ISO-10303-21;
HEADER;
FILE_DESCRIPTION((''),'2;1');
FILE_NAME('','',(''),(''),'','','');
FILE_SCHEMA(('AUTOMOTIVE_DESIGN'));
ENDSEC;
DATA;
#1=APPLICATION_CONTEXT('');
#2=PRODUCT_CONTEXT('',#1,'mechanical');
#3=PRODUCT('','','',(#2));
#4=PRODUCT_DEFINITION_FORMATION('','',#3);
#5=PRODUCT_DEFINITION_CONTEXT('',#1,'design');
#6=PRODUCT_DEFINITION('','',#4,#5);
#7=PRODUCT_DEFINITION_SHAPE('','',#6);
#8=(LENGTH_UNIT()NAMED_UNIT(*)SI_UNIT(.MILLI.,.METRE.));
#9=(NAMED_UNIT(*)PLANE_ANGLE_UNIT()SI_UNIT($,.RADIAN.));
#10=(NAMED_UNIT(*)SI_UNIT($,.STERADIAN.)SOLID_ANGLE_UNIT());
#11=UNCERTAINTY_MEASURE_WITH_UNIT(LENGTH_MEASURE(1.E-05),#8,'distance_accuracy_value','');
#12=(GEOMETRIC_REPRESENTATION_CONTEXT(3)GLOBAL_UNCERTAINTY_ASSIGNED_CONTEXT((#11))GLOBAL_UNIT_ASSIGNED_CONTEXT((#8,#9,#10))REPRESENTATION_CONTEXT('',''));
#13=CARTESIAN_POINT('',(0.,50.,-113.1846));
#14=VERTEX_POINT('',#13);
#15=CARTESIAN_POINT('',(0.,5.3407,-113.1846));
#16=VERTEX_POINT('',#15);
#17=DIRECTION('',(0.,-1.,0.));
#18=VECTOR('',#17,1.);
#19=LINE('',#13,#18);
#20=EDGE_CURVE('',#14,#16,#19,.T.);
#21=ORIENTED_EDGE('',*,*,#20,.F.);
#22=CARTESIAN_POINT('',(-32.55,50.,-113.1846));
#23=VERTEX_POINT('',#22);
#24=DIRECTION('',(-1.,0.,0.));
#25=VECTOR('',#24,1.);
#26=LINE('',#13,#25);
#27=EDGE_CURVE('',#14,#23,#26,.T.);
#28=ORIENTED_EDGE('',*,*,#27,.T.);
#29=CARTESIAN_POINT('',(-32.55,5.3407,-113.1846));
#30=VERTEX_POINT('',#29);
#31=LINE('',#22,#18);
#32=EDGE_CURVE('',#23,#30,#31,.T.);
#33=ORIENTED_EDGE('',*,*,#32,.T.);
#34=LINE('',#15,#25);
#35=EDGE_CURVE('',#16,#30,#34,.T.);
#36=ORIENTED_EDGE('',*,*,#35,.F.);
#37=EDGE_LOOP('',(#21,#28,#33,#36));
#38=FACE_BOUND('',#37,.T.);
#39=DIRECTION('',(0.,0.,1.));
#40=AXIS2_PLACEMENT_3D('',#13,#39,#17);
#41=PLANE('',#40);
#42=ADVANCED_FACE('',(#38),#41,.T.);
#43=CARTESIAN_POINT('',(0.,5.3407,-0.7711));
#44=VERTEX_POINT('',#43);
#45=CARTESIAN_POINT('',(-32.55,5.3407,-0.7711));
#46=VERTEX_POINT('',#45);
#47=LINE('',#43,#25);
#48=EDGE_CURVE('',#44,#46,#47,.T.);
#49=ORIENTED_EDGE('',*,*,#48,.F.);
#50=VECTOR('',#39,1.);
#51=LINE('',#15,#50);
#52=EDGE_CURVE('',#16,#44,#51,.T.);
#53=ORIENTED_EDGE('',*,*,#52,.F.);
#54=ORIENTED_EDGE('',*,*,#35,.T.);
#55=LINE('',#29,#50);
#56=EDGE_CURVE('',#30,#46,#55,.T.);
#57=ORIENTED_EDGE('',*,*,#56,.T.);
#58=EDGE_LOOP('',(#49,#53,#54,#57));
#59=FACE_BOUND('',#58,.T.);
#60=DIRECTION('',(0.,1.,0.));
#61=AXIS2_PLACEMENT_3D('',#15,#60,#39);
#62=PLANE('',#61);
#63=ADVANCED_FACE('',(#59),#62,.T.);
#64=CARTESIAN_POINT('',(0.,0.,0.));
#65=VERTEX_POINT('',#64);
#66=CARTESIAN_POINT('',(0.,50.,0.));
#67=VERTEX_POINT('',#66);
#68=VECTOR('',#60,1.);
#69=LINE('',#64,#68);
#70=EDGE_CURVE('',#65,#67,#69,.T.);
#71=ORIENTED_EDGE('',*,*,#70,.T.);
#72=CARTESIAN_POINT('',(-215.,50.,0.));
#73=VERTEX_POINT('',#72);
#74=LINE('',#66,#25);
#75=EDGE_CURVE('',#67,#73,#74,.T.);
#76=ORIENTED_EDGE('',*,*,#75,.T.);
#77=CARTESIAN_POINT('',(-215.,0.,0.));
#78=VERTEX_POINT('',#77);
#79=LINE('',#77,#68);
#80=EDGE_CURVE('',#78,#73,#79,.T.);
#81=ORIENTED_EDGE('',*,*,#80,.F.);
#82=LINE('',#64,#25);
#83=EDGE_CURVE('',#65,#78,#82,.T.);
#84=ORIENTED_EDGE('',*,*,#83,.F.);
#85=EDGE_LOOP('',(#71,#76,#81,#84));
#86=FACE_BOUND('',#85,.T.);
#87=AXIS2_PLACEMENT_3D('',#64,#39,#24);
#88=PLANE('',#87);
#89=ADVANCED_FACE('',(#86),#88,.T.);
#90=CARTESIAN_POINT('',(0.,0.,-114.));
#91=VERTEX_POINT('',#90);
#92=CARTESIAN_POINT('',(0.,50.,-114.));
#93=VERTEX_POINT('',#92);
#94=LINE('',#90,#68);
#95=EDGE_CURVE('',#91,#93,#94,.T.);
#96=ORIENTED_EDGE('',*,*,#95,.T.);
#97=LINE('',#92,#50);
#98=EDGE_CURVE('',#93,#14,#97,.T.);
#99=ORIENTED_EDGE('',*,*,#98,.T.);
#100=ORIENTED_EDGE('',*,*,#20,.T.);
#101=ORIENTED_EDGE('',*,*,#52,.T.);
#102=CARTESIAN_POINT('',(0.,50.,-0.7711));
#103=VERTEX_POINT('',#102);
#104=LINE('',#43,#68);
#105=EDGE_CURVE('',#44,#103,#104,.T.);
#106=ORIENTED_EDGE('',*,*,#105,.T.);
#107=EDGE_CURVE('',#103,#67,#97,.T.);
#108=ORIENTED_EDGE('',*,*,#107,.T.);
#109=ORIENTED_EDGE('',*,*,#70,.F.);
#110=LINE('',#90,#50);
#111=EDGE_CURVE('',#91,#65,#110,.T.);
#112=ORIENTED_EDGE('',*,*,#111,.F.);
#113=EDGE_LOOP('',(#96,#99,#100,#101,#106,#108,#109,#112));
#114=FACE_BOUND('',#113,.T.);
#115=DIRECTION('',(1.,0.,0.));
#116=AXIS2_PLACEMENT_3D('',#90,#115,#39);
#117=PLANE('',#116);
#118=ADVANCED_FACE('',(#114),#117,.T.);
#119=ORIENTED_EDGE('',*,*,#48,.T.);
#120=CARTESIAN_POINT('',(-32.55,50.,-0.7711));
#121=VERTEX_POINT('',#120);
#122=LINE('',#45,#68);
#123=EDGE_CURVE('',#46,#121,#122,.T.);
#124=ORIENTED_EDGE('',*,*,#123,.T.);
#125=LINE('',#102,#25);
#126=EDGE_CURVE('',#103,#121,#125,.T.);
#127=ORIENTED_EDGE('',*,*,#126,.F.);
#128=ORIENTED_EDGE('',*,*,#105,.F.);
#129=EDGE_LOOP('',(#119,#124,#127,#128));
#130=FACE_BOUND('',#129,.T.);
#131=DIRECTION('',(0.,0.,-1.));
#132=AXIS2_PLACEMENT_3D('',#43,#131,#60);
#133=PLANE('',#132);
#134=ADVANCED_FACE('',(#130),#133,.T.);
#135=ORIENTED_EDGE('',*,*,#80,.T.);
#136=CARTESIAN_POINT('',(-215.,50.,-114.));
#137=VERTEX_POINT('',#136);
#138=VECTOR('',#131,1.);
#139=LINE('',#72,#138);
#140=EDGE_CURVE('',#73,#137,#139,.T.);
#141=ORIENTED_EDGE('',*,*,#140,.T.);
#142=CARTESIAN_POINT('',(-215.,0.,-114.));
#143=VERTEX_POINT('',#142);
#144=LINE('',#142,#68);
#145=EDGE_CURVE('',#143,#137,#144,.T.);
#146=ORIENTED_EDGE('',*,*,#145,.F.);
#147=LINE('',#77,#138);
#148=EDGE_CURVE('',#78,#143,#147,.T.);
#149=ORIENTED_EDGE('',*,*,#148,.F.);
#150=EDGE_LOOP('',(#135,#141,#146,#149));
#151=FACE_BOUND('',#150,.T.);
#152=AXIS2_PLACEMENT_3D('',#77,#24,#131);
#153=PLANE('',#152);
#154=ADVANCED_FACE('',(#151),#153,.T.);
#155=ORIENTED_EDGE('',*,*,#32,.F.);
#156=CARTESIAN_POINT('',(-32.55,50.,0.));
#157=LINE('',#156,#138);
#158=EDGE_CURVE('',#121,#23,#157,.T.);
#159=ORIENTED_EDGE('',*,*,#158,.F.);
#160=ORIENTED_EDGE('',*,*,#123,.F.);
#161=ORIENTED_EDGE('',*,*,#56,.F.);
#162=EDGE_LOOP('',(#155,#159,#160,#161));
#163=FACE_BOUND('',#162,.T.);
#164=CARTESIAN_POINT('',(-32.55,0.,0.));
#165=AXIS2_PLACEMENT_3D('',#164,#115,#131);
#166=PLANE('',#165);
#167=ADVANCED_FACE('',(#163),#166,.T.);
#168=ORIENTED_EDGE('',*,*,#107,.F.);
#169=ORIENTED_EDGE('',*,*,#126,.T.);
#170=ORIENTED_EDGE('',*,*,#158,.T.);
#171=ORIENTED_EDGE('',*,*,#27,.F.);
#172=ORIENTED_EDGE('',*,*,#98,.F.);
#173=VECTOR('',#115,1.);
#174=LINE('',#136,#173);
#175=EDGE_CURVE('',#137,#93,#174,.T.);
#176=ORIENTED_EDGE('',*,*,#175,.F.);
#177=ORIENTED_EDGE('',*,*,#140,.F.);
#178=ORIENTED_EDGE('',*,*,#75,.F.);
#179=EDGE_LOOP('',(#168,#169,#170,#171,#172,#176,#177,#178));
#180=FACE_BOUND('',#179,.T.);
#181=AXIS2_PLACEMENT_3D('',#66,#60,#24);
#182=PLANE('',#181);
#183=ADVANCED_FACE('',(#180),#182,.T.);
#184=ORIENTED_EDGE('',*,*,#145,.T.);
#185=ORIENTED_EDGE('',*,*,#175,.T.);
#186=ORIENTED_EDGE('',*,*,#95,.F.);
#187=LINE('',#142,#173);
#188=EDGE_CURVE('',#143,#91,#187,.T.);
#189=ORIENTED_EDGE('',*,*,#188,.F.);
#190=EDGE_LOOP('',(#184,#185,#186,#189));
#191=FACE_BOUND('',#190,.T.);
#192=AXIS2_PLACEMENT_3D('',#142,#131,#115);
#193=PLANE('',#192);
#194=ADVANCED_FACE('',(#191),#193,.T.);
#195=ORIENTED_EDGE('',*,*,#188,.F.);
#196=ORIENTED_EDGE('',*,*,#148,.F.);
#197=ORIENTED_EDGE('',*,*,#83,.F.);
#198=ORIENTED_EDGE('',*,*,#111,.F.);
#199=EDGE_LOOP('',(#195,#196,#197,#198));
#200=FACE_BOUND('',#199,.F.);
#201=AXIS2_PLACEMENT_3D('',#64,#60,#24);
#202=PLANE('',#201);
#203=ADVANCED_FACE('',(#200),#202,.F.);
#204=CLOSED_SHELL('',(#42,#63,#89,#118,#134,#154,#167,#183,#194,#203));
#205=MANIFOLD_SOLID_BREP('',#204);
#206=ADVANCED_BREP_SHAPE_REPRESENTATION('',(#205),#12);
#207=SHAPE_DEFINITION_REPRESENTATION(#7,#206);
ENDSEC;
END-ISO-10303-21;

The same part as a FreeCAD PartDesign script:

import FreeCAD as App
import Part
import Sketcher
from FreeCAD import Vector

doc = App.newDocument("Part")
body = doc.addObject("PartDesign::Body", "Body")

# Sketch on XZ plane
sketch1 = body.newObject("Sketcher::SketchObject", "Sketch")
sketch1.AttachmentSupport = (doc.getObject("XZ_Plane"), [""])
sketch1.MapMode = "FlatFace"
sketch1.addGeometry([
    Part.LineSegment(Vector(-215, 0, 0), Vector(0, 0, 0)),
    Part.LineSegment(Vector(0, 0, 0), Vector(0, -114, 0)),
    Part.LineSegment(Vector(0, -114, 0), Vector(-215, -114, 0)),
    Part.LineSegment(Vector(-215, -114, 0), Vector(-215, 0, 0)),
], False)
sketch1.addConstraint([
    Sketcher.Constraint("Coincident", 0, 2, 1, 1),
    Sketcher.Constraint("Coincident", 1, 2, 2, 1),
    Sketcher.Constraint("Coincident", 2, 2, 3, 1),
    Sketcher.Constraint("Coincident", 3, 2, 0, 1),
    Sketcher.Constraint("Horizontal", 0),
    Sketcher.Constraint("Vertical", 1),
    Sketcher.Constraint("Horizontal", 2),
    Sketcher.Constraint("Vertical", 3),
    Sketcher.Constraint("Coincident", 0, 2, -1, 1),
    Sketcher.Constraint("DistanceX", 0, 1, 0, 2, 215.0),
    Sketcher.Constraint("DistanceY", 1, 2, 1, 1, 114.0),
])
pad1 = body.newObject("PartDesign::Pad", "Pad")
pad1.Profile = sketch1
pad1.Length = 50
pad1.Reversed = True

# Sketch on YZ plane
sketch2 = body.newObject("Sketcher::SketchObject", "Sketch001")
sketch2.AttachmentSupport = (doc.getObject("YZ_Plane"), [""])
sketch2.MapMode = "FlatFace"
sketch2.addGeometry([
    Part.LineSegment(Vector(50, -113, 0), Vector(50, -1, 0)),
    Part.LineSegment(Vector(50, -1, 0), Vector(5, -1, 0)),
    Part.LineSegment(Vector(5, -1, 0), Vector(5, -113, 0)),
    Part.LineSegment(Vector(5, -113, 0), Vector(50, -113, 0)),
], False)
sketch2.addConstraint([
    Sketcher.Constraint("Coincident", 0, 2, 1, 1),
    Sketcher.Constraint("Coincident", 1, 2, 2, 1),
    Sketcher.Constraint("Coincident", 2, 2, 3, 1),
    Sketcher.Constraint("Coincident", 3, 2, 0, 1),
    Sketcher.Constraint("Vertical", 0),
    Sketcher.Constraint("Horizontal", 1),
    Sketcher.Constraint("Vertical", 2),
    Sketcher.Constraint("Horizontal", 3),
    Sketcher.Constraint("DistanceX", -1, 1, 0, 2, 50.0),
    Sketcher.Constraint("DistanceX", 1, 2, 1, 1, 44.6593),
    Sketcher.Constraint("DistanceY", 0, 1, 0, 2, 112.4135),
    Sketcher.Constraint("DistanceY", 0, 2, -1, 1, 0.771),
])
pocket1 = body.newObject("PartDesign::Pocket", "Pocket")
pocket1.Profile = sketch2
pocket1.Length = 32.55

doc.recompute()
